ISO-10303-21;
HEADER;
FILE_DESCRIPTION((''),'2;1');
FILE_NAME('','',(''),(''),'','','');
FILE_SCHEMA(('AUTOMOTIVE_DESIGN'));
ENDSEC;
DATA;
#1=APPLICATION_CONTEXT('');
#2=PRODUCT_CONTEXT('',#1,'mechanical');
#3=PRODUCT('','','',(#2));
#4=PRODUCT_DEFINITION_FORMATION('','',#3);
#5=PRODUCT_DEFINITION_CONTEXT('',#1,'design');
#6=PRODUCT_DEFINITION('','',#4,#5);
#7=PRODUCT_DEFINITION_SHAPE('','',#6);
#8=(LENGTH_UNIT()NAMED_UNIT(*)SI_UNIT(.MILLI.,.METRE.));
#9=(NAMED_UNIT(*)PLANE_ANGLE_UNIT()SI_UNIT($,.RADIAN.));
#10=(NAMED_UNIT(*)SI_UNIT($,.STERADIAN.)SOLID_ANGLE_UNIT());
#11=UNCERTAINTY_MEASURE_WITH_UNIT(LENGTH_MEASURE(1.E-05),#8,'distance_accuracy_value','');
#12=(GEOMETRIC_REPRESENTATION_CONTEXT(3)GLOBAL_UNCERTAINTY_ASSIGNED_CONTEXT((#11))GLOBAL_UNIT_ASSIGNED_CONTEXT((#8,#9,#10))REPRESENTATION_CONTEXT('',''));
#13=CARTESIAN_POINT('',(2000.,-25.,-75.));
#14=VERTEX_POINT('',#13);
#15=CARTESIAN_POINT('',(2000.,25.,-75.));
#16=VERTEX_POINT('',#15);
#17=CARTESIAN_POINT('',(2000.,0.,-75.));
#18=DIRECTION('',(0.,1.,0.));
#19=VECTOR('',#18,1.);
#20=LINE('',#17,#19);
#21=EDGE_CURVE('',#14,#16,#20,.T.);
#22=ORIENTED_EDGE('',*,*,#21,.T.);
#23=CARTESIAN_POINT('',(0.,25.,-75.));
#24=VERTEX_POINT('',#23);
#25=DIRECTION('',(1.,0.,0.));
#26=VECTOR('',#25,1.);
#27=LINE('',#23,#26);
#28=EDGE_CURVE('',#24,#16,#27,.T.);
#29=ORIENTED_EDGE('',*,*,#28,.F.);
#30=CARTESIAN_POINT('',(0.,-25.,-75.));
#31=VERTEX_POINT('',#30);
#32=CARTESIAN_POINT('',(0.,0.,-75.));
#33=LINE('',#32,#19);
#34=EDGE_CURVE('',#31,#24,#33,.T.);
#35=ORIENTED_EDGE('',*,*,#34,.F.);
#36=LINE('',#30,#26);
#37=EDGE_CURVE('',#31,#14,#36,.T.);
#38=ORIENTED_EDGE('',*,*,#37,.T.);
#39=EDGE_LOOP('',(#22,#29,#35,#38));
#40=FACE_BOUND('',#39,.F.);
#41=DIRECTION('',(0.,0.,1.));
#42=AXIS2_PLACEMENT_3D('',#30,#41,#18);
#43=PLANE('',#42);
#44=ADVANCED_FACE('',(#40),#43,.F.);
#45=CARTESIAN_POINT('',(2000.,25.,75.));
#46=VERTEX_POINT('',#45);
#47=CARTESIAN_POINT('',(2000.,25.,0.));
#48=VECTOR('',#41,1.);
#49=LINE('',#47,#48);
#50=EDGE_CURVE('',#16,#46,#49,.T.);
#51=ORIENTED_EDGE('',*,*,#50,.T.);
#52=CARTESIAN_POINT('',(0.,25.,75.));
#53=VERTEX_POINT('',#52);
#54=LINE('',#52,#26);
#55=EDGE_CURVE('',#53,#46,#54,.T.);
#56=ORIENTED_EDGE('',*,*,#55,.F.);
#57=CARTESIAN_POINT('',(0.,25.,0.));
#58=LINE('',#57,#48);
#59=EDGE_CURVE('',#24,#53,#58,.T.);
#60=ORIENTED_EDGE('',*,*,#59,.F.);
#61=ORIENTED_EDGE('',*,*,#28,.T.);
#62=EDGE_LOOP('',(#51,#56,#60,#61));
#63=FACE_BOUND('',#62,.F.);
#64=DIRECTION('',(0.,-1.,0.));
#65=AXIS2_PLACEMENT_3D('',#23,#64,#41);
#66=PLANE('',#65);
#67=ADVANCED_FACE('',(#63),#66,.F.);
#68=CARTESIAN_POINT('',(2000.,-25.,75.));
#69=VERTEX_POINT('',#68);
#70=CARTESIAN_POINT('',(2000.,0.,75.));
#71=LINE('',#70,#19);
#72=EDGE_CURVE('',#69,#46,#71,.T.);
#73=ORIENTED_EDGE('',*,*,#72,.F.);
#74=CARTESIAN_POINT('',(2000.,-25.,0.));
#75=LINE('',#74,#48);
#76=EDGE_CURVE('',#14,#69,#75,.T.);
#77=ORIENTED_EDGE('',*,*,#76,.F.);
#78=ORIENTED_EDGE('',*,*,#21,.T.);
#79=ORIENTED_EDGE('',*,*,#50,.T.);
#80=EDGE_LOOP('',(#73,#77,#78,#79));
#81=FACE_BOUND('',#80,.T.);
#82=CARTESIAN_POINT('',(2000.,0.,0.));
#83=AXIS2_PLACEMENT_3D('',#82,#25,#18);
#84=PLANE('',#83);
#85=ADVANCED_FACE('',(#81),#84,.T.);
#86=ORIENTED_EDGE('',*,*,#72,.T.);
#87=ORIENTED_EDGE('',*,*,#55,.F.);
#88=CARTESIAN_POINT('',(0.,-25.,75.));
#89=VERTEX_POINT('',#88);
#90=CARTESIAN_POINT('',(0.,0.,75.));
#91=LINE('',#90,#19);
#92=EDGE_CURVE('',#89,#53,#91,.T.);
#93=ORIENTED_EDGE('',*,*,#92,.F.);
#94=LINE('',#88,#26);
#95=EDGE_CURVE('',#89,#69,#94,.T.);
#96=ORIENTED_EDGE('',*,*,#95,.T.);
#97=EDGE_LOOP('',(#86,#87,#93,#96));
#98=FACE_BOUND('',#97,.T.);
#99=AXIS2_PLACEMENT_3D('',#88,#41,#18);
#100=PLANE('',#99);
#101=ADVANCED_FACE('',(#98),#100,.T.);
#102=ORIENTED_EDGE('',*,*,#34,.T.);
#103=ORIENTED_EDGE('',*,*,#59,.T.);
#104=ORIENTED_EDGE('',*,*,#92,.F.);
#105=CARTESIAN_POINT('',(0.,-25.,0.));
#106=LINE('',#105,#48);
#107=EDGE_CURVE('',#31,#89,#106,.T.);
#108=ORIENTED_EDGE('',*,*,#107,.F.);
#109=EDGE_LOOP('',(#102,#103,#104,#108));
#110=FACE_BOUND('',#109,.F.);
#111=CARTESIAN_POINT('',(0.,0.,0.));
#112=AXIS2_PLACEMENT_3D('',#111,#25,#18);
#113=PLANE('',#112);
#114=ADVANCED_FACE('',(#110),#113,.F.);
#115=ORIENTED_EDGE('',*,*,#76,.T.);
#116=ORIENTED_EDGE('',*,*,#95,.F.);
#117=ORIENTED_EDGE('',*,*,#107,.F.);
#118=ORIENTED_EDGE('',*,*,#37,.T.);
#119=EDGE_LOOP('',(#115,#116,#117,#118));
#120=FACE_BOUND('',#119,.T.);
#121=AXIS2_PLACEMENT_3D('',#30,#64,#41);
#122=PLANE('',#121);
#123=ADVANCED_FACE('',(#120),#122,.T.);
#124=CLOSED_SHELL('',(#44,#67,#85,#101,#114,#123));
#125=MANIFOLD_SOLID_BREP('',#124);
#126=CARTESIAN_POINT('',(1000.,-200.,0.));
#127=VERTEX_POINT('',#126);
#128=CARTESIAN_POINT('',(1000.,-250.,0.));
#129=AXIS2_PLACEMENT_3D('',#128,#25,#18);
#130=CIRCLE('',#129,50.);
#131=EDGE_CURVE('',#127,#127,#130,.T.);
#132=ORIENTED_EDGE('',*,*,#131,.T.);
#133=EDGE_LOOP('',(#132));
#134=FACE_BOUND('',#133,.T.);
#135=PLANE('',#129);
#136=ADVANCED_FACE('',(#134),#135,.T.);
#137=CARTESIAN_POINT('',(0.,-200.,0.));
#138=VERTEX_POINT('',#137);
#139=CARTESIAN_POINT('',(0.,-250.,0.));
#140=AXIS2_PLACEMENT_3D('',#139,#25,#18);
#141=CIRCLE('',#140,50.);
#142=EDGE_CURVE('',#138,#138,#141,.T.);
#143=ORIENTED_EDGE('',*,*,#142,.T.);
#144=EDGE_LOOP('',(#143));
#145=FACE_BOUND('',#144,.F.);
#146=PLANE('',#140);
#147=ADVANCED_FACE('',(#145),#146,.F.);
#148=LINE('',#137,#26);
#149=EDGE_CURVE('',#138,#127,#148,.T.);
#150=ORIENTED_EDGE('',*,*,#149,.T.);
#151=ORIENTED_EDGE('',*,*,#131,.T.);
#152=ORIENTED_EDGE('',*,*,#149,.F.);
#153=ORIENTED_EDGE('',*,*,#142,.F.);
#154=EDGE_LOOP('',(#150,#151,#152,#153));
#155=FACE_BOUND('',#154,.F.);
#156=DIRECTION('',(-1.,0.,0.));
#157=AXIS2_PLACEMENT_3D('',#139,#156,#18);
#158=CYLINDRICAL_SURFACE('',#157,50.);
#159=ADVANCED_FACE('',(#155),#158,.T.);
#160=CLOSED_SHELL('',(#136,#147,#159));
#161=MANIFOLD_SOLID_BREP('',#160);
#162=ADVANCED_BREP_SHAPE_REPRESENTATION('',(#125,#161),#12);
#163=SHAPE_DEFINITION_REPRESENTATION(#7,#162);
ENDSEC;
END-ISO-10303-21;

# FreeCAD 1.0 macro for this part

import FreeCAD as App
import Part
import Sketcher

doc = App.newDocument("Part")
params = doc.addObject("Spreadsheet::Sheet", "Params")
for row, (alias, value) in enumerate([
    ("sketch1_width", "50 mm"),
    ("sketch1_height", "150 mm"),
    ("pad1_length", "2000 mm"),
    ("sketch2_diameter", "100 mm"),
    ("pad2_length", "1000 mm"),
], start=1):
    params.set(f"A{row}", alias)
    params.set(f"B{row}", "=" + value)
    params.setAlias(f"B{row}", alias)

body = doc.addObject("PartDesign::Body", "Body")

# Sketch on YZ plane
sketch1 = body.newObject("Sketcher::SketchObject", "Sketch")
sketch1.AttachmentSupport = (doc.getObject("YZ_Plane"), [""])
sketch1.MapMode = "FlatFace"
sketch1.addGeometry([
    Part.LineSegment(App.Vector(-25, 75, 0), App.Vector(-25, -75, 0)),
    Part.LineSegment(App.Vector(-25, -75, 0), App.Vector(25, -75, 0)),
    Part.LineSegment(App.Vector(25, -75, 0), App.Vector(25, 75, 0)),
    Part.LineSegment(App.Vector(25, 75, 0), App.Vector(-25, 75, 0)),
], False)
sketch1.addConstraint([
    Sketcher.Constraint("Coincident", 0, 2, 1, 1),
    Sketcher.Constraint("Coincident", 1, 2, 2, 1),
    Sketcher.Constraint("Coincident", 2, 2, 3, 1),
    Sketcher.Constraint("Coincident", 3, 2, 0, 1),
    Sketcher.Constraint("Vertical", 0),
    Sketcher.Constraint("Horizontal", 1),
    Sketcher.Constraint("Vertical", 2),
    Sketcher.Constraint("Horizontal", 3),
    Sketcher.Constraint("Symmetric", 0, 2, 2, 2, -1, 1),
    Sketcher.Constraint("DistanceX", 1, 1, 1, 2, 50.0),
    Sketcher.Constraint("DistanceY", 0, 2, 0, 1, 150.0),
])
sketch1.setExpression("Constraints[9]", "Params.sketch1_width")
sketch1.setExpression("Constraints[10]", "Params.sketch1_height")
pad1 = body.newObject("PartDesign::Pad", "Pad")
pad1.Profile = sketch1
pad1.setExpression("Length", "Params.pad1_length")
body2 = doc.addObject("PartDesign::Body", "Body001")

# Sketch on YZ plane
sketch2 = body2.newObject("Sketcher::SketchObject", "Sketch001")
sketch2.AttachmentSupport = (doc.getObject("YZ_Plane001"), [""])
sketch2.MapMode = "FlatFace"
sketch2.addGeometry(Part.Circle(App.Vector(-250, 0, 0), App.Vector(0, 0, 1), 50), False)
sketch2.addConstraint([
    Sketcher.Constraint("PointOnObject", 0, 3, -1),
    Sketcher.Constraint("Diameter", 0, 100.0),
    Sketcher.Constraint("DistanceX", 0, 3, -1, 1, 250.0),
])
sketch2.setExpression("Constraints[1]", "Params.sketch2_diameter")
pad2 = body2.newObject("PartDesign::Pad", "Pad001")
pad2.Profile = sketch2
pad2.setExpression("Length", "Params.pad2_length")

doc.recompute()
